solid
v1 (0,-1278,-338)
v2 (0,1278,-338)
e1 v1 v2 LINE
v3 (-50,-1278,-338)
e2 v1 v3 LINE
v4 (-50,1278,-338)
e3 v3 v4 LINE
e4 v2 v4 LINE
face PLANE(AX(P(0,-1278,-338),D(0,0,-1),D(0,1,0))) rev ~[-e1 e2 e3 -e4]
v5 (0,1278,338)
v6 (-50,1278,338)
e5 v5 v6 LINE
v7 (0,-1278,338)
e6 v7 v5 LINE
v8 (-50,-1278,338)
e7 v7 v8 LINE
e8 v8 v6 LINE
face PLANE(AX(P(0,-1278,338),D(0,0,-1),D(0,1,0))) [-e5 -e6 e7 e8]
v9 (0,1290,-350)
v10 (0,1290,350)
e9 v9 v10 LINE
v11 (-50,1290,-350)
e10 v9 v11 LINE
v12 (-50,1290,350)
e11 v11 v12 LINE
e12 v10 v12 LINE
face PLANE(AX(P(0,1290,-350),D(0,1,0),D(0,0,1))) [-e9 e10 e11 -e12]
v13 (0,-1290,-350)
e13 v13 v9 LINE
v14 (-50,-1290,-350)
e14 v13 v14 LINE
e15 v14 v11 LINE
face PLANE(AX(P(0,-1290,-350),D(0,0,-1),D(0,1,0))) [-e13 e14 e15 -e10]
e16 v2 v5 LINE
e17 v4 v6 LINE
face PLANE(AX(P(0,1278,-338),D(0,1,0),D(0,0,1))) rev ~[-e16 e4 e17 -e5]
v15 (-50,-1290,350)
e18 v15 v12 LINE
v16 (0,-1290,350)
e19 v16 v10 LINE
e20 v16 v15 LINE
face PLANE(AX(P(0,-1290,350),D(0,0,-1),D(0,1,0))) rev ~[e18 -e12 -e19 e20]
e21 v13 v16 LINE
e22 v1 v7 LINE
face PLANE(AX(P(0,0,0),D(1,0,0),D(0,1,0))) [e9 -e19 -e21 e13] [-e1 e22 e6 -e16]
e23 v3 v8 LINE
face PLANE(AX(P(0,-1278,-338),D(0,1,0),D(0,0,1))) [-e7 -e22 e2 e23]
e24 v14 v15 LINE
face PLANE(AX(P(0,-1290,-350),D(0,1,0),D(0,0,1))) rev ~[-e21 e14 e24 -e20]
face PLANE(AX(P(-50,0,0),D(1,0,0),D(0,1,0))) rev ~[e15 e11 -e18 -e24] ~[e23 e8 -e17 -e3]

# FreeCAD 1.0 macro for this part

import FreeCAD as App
import Part
import Sketcher
from FreeCAD import Vector
Q = App.Units.Quantity


def add_polygon(sketch, points):
    """Adds a closed chain of lines whose ends are joined by coincident constraints."""
    first, n = sketch.GeometryCount, len(points)
    for a, b in zip(points, points[1:] + points[:1]):
        sketch.addGeometry(Part.LineSegment(App.Vector(*a, 0), App.Vector(*b, 0)), False)
    for i in range(n):
        sketch.addConstraint(Sketcher.Constraint("Coincident", first + i, 2, first + (i + 1) % n, 1))

doc = App.newDocument("Part")
params = doc.addObject("Spreadsheet::Sheet", "Params")
for row, (alias, value) in enumerate([
    ("sketch1_width", "2580 mm"),
    ("sketch1_width2", "2556 mm"),
    ("sketch1_height", "700 mm"),
    ("sketch1_height2", "676 mm"),
    ("pad1_length", "50 mm"),
], start=1):
    params.set(f"A{row}", alias)
    params.set(f"B{row}", "=" + value)
    params.setAlias(f"B{row}", alias)

body = doc.addObject("PartDesign::Body", "Body")

sketch1 = doc.addObject("Sketcher::SketchObject", "Sketch")
body.addObject(sketch1)
sketch1.AttachmentSupport = (doc.YZ_Plane, [""])
sketch1.MapMode = "FlatFace"
add_polygon(sketch1, [(-1290, 350), (-1290, -350), (1290, -350), (1290, 350)])
add_polygon(sketch1, [(1278, -338), (-1278, -338), (-1278, 338), (1278, 338)])
sketch1.addConstraint(Sketcher.Constraint("Vertical", 0))
sketch1.addConstraint(Sketcher.Constraint("Horizontal", 1))
sketch1.addConstraint(Sketcher.Constraint("Vertical", 2))
sketch1.addConstraint(Sketcher.Constraint("Horizontal", 3))
sketch1.addConstraint(Sketcher.Constraint("Horizontal", 4))
sketch1.addConstraint(Sketcher.Constraint("Vertical", 5))
sketch1.addConstraint(Sketcher.Constraint("Horizontal", 6))
sketch1.addConstraint(Sketcher.Constraint("Vertical", 7))
sketch1.addConstraint(Sketcher.Constraint("Symmetric", 0, 2, 2, 2, -1, 1))
sketch1.addConstraint(Sketcher.Constraint("Symmetric", 4, 2, 6, 2, -1, 1))
sketch1.addConstraint(Sketcher.Constraint("DistanceX", 1, 1, 1, 2, Q("2580 mm")))
sketch1.addConstraint(Sketcher.Constraint("DistanceX", 4, 2, 4, 1, Q("2556 mm")))
sketch1.addConstraint(Sketcher.Constraint("DistanceY", 0, 2, 0, 1, Q("700 mm")))
sketch1.addConstraint(Sketcher.Constraint("DistanceY", 5, 1, 5, 2, Q("676 mm")))
sketch1.setExpression("Constraints[18]", "Params.sketch1_width")
sketch1.setExpression("Constraints[19]", "Params.sketch1_width2")
sketch1.setExpression("Constraints[20]", "Params.sketch1_height")
sketch1.setExpression("Constraints[21]", "Params.sketch1_height2")
pad1 = doc.addObject("PartDesign::Pad", "Pad")
body.addObject(pad1)
pad1.Profile = sketch1
pad1.setExpression("Length", "Params.pad1_length")
pad1.Reversed = True

doc.recompute()
